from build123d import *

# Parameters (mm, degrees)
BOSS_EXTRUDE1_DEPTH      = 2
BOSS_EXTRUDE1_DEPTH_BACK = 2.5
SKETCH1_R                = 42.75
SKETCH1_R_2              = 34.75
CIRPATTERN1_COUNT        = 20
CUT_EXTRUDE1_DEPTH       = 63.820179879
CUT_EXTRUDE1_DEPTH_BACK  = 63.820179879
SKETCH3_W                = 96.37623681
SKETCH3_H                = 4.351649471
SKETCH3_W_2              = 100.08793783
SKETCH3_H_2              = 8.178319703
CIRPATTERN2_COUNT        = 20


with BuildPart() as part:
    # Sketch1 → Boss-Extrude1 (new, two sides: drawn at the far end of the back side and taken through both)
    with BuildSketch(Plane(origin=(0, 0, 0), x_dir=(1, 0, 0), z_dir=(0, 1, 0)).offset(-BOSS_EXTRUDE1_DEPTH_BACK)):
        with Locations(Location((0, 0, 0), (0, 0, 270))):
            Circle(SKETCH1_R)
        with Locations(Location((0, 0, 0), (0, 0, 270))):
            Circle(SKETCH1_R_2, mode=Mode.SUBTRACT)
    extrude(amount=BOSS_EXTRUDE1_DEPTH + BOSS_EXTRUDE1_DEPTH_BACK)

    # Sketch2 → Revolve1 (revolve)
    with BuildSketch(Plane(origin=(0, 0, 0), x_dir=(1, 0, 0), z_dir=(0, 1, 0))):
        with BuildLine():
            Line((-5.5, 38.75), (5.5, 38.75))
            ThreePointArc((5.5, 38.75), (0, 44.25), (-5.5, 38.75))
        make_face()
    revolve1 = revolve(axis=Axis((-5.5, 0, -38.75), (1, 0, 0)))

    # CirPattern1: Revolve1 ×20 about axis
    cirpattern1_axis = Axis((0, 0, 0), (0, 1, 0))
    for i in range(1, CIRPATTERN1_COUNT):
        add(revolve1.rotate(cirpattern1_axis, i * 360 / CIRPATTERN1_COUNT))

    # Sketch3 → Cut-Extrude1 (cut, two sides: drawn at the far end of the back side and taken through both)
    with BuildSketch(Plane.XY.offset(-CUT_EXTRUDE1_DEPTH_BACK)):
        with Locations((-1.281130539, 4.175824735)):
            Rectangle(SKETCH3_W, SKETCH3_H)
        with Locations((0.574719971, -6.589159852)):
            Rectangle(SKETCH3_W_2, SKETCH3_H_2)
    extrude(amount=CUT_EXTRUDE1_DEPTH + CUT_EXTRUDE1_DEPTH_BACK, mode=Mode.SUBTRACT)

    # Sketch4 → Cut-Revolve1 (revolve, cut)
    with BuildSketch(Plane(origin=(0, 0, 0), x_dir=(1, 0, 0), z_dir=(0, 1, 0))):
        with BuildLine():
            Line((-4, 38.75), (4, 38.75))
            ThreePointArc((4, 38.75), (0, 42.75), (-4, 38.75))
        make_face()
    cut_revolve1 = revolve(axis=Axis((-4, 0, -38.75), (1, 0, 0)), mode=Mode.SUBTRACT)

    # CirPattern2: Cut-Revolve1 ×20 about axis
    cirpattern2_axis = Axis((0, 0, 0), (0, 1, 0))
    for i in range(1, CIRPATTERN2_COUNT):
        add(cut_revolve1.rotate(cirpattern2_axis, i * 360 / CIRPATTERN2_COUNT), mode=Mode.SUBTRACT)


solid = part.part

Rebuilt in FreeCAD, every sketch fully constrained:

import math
import FreeCAD as App
import Part
import Sketcher

V = App.Vector


def add_polygon(sketch, points):
    """Adds a closed chain of lines whose ends are joined by coincident constraints."""
    first, n = sketch.GeometryCount, len(points)
    for a, b in zip(points, points[1:] + points[:1]):
        sketch.addGeometry(Part.LineSegment(App.Vector(*a, 0), App.Vector(*b, 0)), False)
    for i in range(n):
        sketch.addConstraint(Sketcher.Constraint("Coincident", first + i, 2, first + (i + 1) % n, 1))

doc = App.newDocument("Part")
params = doc.addObject("Spreadsheet::Sheet", "Params")
for row, (alias, value) in enumerate([
    ("sketch1_diameter", "85.5 mm"),
    ("sketch1_diameter2", "69.5 mm"),
    ("pad1_length", "2 mm"),
    ("pad1_length2", "2.5 mm"),
    ("sketch2_radius", "5.5 mm"),
    ("revolution_angle", "360 deg"),
    ("sketch4_radius", "4 mm"),
    ("groove_angle", "360 deg"),
], start=1):
    params.set(f"A{row}", alias)
    params.set(f"B{row}", "=" + value)
    params.setAlias(f"B{row}", alias)

body = doc.addObject("PartDesign::Body", "Body")

sketch1 = body.newObject("Sketcher::SketchObject", "Sketch")
sketch1.AttachmentSupport = (doc.getObject("XZ_Plane"), [""])
sketch1.MapMode = "FlatFace"
sketch1.addGeometry([
    Part.Circle(V(0, 0, 0), V(0, 0, 1), 43),
    Part.Circle(V(0, 0, 0), V(0, 0, 1), 35),
], False)
sketch1.addConstraint([
    Sketcher.Constraint("Coincident", 0, 3, -1, 1),
    Sketcher.Constraint("Coincident", 1, 3, -1, 1),
    Sketcher.Constraint("Diameter", 0, 85.5),
    Sketcher.Constraint("Diameter", 1, 69.5),
])
sketch1.setExpression("Constraints[2]", "Params.sketch1_diameter")
sketch1.setExpression("Constraints[3]", "Params.sketch1_diameter2")
pad1 = body.newObject("PartDesign::Pad", "Pad")
pad1.Profile = sketch1
pad1.Type = "TwoLengths"
pad1.setExpression("Length", "Params.pad1_length")
pad1.setExpression("Length2", "Params.pad1_length2")
pad1.Reversed = True

sketch2 = body.newObject("Sketcher::SketchObject", "Sketch001")
sketch2.AttachmentSupport = (doc.getObject("XZ_Plane"), [""])
sketch2.MapMode = "FlatFace"
sketch2.addGeometry([
    Part.LineSegment(V(-6, -39, 0), V(6, -39, 0)),
    Part.ArcOfCircle(Part.Circle(V(0, -39, 0), V(0, 0, 1), 6), math.radians(180), math.radians(360)),
], False)
sketch2.addGeometry(Part.LineSegment(V(-6, -39, 0), V(6, -39, 0)), True)
sketch2.addConstraint([
    Sketcher.Constraint("Coincident", 0, 1, 1, 1),
    Sketcher.Constraint("Coincident", 1, 2, 0, 2),
    Sketcher.Constraint("Horizontal", 0),
    Sketcher.Constraint("Horizontal", 2),
    Sketcher.Constraint("Coincident", 2, 1, 0, 1),
    Sketcher.Constraint("PointOnObject", 1, 3, -2),
    Sketcher.Constraint("Horizontal", 1, 3, 0, 1),
    Sketcher.Constraint("Equal", 0, 2),
    Sketcher.Constraint("Radius", 1, 5.5),
    Sketcher.Constraint("DistanceY", 1, 3, -1, 1, 38.75),
])
sketch2.setExpression("Constraints[8]", "Params.sketch2_radius")
revolution = body.newObject("PartDesign::Revolution", "Revolution")
revolution.Profile = sketch2
revolution.ReferenceAxis = (sketch2, ["Axis0"])
revolution.setExpression("Angle", "Params.revolution_angle")
doc.recompute()

polarpattern = body.newObject("PartDesign::PolarPattern", "PolarPattern")
polarpattern.Originals = [revolution]
polarpattern.Axis = (doc.getObject("Y_Axis"), [""])
polarpattern.Angle = 360
polarpattern.Occurrences = 20
body.Tip = polarpattern

sketch3 = body.newObject("Sketcher::SketchObject", "Sketch002")
sketch3.AttachmentSupport = (doc.getObject("XY_Plane"), [""])
sketch3.MapMode = "FlatFace"
add_polygon(sketch3, [(-49.5, 6.4), (-49.5, 2), (46.9, 2), (46.9, 6.4)])
add_polygon(sketch3, [(-49.5, -2.5), (-49.5, -10.7), (50.6, -10.7), (50.6, -2.5)])
sketch3.addConstraint([
    Sketcher.Constraint("Vertical", 0),
    Sketcher.Constraint("Horizontal", 1),
    Sketcher.Constraint("Vertical", 2),
    Sketcher.Constraint("Horizontal", 3),
    Sketcher.Constraint("Vertical", 4),
    Sketcher.Constraint("Horizontal", 5),
    Sketcher.Constraint("Vertical", 6),
    Sketcher.Constraint("Horizontal", 7),
    Sketcher.Constraint("Vertical", 3, 2, 4, 2),
    Sketcher.Constraint("DistanceY", -1, 1, 0, 2, 2.0),
    Sketcher.Constraint("DistanceY", 6, 2, -1, 1, 2.5),
    Sketcher.Constraint("DistanceY", 0, 2, 0, 1, 4.351649),
    Sketcher.Constraint("DistanceY", 4, 2, 4, 1, 8.17832),
    Sketcher.Constraint("DistanceX", 1, 2, 5, 2, 3.711701),
    Sketcher.Constraint("DistanceX", 1, 1, 1, 2, 96.376237),
    Sketcher.Constraint("DistanceX", 0, 2, -1, 1, 49.469249),
])
pocket1 = body.newObject("PartDesign::Pocket", "Pocket")
pocket1.Profile = sketch3
pocket1.Type = "ThroughAll"
pocket1.Midplane = True

sketch4 = body.newObject("Sketcher::SketchObject", "Sketch003")
sketch4.AttachmentSupport = (doc.getObject("XZ_Plane"), [""])
sketch4.MapMode = "FlatFace"
sketch4.addGeometry([
    Part.LineSegment(V(-4, -38.8, 0), V(4, -38.8, 0)),
    Part.ArcOfCircle(Part.Circle(V(0, -38.8, 0), V(0, 0, 1), 4), math.radians(180), math.radians(360)),
], False)
sketch4.addGeometry(Part.LineSegment(V(-4, -38.8, 0), V(4, -38.8, 0)), True)
sketch4.addConstraint([
    Sketcher.Constraint("Coincident", 0, 1, 1, 1),
    Sketcher.Constraint("Coincident", 1, 2, 0, 2),
    Sketcher.Constraint("Horizontal", 0),
    Sketcher.Constraint("Horizontal", 2),
    Sketcher.Constraint("Coincident", 2, 1, 0, 1),
    Sketcher.Constraint("PointOnObject", 1, 3, -2),
    Sketcher.Constraint("Horizontal", 1, 3, 0, 1),
    Sketcher.Constraint("Equal", 0, 2),
    Sketcher.Constraint("Radius", 1, 4.0),
    Sketcher.Constraint("DistanceY", 1, 3, -1, 1, 38.75),
])
sketch4.setExpression("Constraints[8]", "Params.sketch4_radius")
groove = body.newObject("PartDesign::Groove", "Groove")
groove.Profile = sketch4
groove.ReferenceAxis = (sketch4, ["Axis0"])
groove.setExpression("Angle", "Params.groove_angle")
doc.recompute()

polarpattern2 = body.newObject("PartDesign::PolarPattern", "PolarPattern001")
polarpattern2.Originals = [groove]
polarpattern2.Axis = (doc.getObject("Y_Axis"), [""])
polarpattern2.Angle = 360
polarpattern2.Occurrences = 20
body.Tip = polarpattern2

doc.recompute()
